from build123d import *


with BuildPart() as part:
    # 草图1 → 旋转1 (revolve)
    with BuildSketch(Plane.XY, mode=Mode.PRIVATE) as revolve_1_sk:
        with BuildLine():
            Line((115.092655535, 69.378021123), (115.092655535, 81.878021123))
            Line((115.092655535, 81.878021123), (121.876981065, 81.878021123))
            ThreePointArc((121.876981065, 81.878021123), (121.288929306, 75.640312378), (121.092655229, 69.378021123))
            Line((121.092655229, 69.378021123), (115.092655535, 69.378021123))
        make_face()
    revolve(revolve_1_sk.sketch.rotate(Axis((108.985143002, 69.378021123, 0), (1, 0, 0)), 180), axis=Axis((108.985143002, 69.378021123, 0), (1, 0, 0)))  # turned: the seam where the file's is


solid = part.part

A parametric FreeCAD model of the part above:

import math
import FreeCAD as App
import Part
import Sketcher
from FreeCAD import Vector
Q = App.Units.Quantity

doc = App.newDocument("Part")
body = doc.addObject("PartDesign::Body", "Body")

# Sketch on XY plane
sketch1 = doc.addObject("Sketcher::SketchObject", "Sketch")
body.addObject(sketch1)
sketch1.AttachmentSupport = (doc.XY_Plane, [""])
sketch1.MapMode = "FlatFace"
sketch1.addGeometry(Part.LineSegment(Vector(115, 82, 0), Vector(115, 69, 0)), False)
sketch1.addGeometry(Part.LineSegment(Vector(115, 69, 0), Vector(121, 69, 0)), False)
sketch1.addGeometry(Part.ArcOfCircle(Part.Circle(Vector(221, 69, 0), Vector(0, 0, 1), 100), math.radians(172.82), math.radians(180)), False)
sketch1.addGeometry(Part.LineSegment(Vector(122, 82, 0), Vector(115, 82, 0)), False)
sketch1.addGeometry(Part.LineSegment(Vector(115, 69, 0), Vector(221, 69, 0)), True)  # axis
sketch1.addConstraint(Sketcher.Constraint("Coincident", 0, 2, 1, 1))
sketch1.addConstraint(Sketcher.Constraint("Coincident", 1, 2, 2, 2))
sketch1.addConstraint(Sketcher.Constraint("Coincident", 2, 1, 3, 1))
sketch1.addConstraint(Sketcher.Constraint("Coincident", 3, 2, 0, 1))
sketch1.addConstraint(Sketcher.Constraint("Vertical", 0))
sketch1.addConstraint(Sketcher.Constraint("Horizontal", 1))
sketch1.addConstraint(Sketcher.Constraint("Horizontal", 3))
sketch1.addConstraint(Sketcher.Constraint("Horizontal", 4))
sketch1.addConstraint(Sketcher.Constraint("Coincident", 4, 1, 0, 2))
sketch1.addConstraint(Sketcher.Constraint("Coincident", 4, 2, 2, 3))
sketch1.addConstraint(Sketcher.Constraint("Radius", 2, Q("100 mm")))
sketch1.addConstraint(Sketcher.Constraint("DistanceX", 1, 1, 1, 2, Q("6 mm")))
sketch1.addConstraint(Sketcher.Constraint("DistanceY", 0, 2, 0, 1, Q("12.5 mm")))
sketch1.addConstraint(Sketcher.Constraint("DistanceY", -1, 1, 2, 3, Q("69.378021 mm")))
sketch1.addConstraint(Sketcher.Constraint("DistanceX", -1, 1, 2, 1, Q("121.876981 mm")))
revolution = doc.addObject("PartDesign::Revolution", "Revolution")
body.addObject(revolution)
revolution.Profile = sketch1
revolution.ReferenceAxis = (sketch1, ["Axis0"])
revolution.Angle = 360

doc.recompute()
